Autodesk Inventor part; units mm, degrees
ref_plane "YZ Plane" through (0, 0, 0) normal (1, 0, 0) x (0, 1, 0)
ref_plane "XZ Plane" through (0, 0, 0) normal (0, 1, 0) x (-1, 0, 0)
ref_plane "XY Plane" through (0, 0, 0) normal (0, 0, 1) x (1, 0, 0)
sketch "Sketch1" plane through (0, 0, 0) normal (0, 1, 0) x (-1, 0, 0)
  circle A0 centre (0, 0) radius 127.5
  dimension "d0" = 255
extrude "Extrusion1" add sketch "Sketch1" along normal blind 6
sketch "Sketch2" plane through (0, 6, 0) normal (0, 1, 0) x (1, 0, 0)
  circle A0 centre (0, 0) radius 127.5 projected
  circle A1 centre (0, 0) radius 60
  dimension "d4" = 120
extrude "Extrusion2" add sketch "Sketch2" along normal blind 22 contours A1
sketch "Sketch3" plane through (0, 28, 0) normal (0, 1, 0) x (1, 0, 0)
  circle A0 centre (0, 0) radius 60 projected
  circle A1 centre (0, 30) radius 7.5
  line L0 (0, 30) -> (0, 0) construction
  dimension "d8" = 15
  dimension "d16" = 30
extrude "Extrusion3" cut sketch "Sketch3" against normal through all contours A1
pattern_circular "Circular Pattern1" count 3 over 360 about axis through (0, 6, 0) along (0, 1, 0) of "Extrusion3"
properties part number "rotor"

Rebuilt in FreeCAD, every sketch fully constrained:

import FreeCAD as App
import Part
import Sketcher
from FreeCAD import Vector

doc = App.newDocument("Part")
body = doc.addObject("PartDesign::Body", "Body")

sketch1 = doc.addObject("Sketcher::SketchObject", "Sketch")
body.addObject(sketch1)
sketch1.AttachmentSupport = (doc.XZ_Plane, [""])
sketch1.MapMode = "FlatFace"
sketch1.addGeometry(Part.Circle(Vector(0, 0, 0), Vector(0, 0, 1), 128), False)
sketch1.addConstraint(Sketcher.Constraint("Coincident", 0, 3, -1, 1))
sketch1.addConstraint(Sketcher.Constraint("Diameter", 0, 255.0))
pad1 = doc.addObject("PartDesign::Pad", "Pad")
body.addObject(pad1)
pad1.Profile = sketch1
pad1.Length = 6
pad1.Reversed = True

sketch2 = doc.addObject("Sketcher::SketchObject", "Sketch001")
body.addObject(sketch2)
sketch2.AttachmentSupport = (doc.XZ_Plane, [""])
sketch2.MapMode = "FlatFace"
sketch2.AttachmentOffset = App.Placement(Vector(0, 0, -6), App.Rotation())
sketch2.addGeometry(Part.Circle(Vector(0, 0, 0), Vector(0, 0, 1), 60), False)
sketch2.addConstraint(Sketcher.Constraint("Coincident", 0, 3, -1, 1))
sketch2.addConstraint(Sketcher.Constraint("Diameter", 0, 120.0))
pad2 = doc.addObject("PartDesign::Pad", "Pad001")
body.addObject(pad2)
pad2.Profile = sketch2
pad2.Length = 22
pad2.Reversed = True

sketch3 = doc.addObject("Sketcher::SketchObject", "Sketch002")
body.addObject(sketch3)
sketch3.AttachmentSupport = (doc.XZ_Plane, [""])
sketch3.MapMode = "FlatFace"
sketch3.AttachmentOffset = App.Placement(Vector(0, 0, -28), App.Rotation())
sketch3.addGeometry(Part.Circle(Vector(0, -30, 0), Vector(0, 0, 1), 8), False)
sketch3.addConstraint(Sketcher.Constraint("PointOnObject", 0, 3, -2))
sketch3.addConstraint(Sketcher.Constraint("Diameter", 0, 15.0))
sketch3.addConstraint(Sketcher.Constraint("DistanceY", 0, 3, -1, 1, 30.0))
pocket1 = doc.addObject("PartDesign::Pocket", "Pocket")
body.addObject(pocket1)
pocket1.Profile = sketch3
pocket1.Type = "ThroughAll"
pocket1.Reversed = True
doc.recompute()

polarpattern = doc.addObject("PartDesign::PolarPattern", "PolarPattern")
body.addObject(polarpattern)
polarpattern.Originals = [pocket1]
polarpattern.Axis = (doc.Y_Axis, [""])
polarpattern.Angle = 360
polarpattern.Occurrences = 3
body.Tip = polarpattern

doc.recompute()
